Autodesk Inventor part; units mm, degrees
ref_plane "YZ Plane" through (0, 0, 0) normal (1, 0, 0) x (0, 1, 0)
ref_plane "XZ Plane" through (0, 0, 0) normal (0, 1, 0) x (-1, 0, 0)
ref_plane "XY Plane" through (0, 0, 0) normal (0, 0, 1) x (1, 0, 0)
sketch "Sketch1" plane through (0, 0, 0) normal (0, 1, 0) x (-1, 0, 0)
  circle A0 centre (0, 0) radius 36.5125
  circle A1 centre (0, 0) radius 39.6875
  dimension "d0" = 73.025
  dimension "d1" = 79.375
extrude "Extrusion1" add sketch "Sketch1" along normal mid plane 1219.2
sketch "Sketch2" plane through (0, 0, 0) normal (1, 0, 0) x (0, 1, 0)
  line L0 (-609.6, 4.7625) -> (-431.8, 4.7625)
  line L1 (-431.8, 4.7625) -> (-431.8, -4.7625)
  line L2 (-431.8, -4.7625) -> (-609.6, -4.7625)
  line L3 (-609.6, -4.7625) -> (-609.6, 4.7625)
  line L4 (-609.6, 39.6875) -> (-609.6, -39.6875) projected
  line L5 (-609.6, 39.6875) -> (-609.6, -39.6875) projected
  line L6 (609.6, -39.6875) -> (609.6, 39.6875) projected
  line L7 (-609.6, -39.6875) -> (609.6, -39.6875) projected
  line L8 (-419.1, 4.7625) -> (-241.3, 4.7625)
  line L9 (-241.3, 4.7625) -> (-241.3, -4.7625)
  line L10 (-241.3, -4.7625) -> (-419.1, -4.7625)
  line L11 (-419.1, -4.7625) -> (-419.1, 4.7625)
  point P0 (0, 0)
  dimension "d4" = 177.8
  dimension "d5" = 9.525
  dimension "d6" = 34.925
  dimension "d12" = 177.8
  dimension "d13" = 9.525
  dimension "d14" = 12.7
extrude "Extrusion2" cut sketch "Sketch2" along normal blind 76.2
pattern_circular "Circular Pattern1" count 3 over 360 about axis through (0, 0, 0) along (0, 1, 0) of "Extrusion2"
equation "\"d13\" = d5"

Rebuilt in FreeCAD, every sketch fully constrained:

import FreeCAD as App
import Part
import Sketcher
from FreeCAD import Vector
Q = App.Units.Quantity

doc = App.newDocument("Part")
params = doc.addObject("Spreadsheet::Sheet", "Params")
for row, (alias, value) in enumerate([
    ("sketch1_diameter", "3.125 in"),
    ("sketch1_diameter2", "2.875 in"),
    ("pad1_length", "48 in"),
    ("sketch2_width", "7 in"),
    ("sketch2_height", "0.375 in"),
    ("pocket1_length", "3 in"),
], start=1):
    params.set(f"A{row}", alias)
    params.set(f"B{row}", "=" + value)
    params.setAlias(f"B{row}", alias)

body = doc.addObject("PartDesign::Body", "Body")

sketch1 = body.newObject("Sketcher::SketchObject", "Sketch")
sketch1.AttachmentSupport = (doc.getObject("XZ_Plane"), [""])
sketch1.MapMode = "FlatFace"
sketch1.addGeometry([
    Part.Circle(Vector(0, 0, 0), Vector(0, 0, 1), 40),
    Part.Circle(Vector(0, 0, 0), Vector(0, 0, 1), 37),
], False)
sketch1.addConstraint([
    Sketcher.Constraint("Coincident", 0, 3, -1, 1),
    Sketcher.Constraint("Coincident", 1, 3, -1, 1),
    Sketcher.Constraint("Diameter", 0, Q("3.125 in")),
    Sketcher.Constraint("Diameter", 1, Q("2.875 in")),
])
sketch1.setExpression("Constraints[2]", "Params.sketch1_diameter")
sketch1.setExpression("Constraints[3]", "Params.sketch1_diameter2")
pad1 = body.newObject("PartDesign::Pad", "Pad")
pad1.Profile = sketch1
pad1.setExpression("Length", "Params.pad1_length")
pad1.Midplane = True

sketch2 = body.newObject("Sketcher::SketchObject", "Sketch001")
sketch2.AttachmentSupport = (doc.getObject("YZ_Plane"), [""])
sketch2.MapMode = "FlatFace"
sketch2.addGeometry([
    Part.LineSegment(Vector(-432, 5, 0), Vector(-610, 5, 0)),
    Part.LineSegment(Vector(-610, 5, 0), Vector(-610, -5, 0)),
    Part.LineSegment(Vector(-610, -5, 0), Vector(-432, -5, 0)),
    Part.LineSegment(Vector(-432, -5, 0), Vector(-432, 5, 0)),
    Part.LineSegment(Vector(-241, 5, 0), Vector(-419, 5, 0)),
    Part.LineSegment(Vector(-419, 5, 0), Vector(-419, -5, 0)),
    Part.LineSegment(Vector(-419, -5, 0), Vector(-241, -5, 0)),
    Part.LineSegment(Vector(-241, -5, 0), Vector(-241, 5, 0)),
], False)
sketch2.addConstraint([
    Sketcher.Constraint("Coincident", 0, 2, 1, 1),
    Sketcher.Constraint("Coincident", 1, 2, 2, 1),
    Sketcher.Constraint("Coincident", 2, 2, 3, 1),
    Sketcher.Constraint("Coincident", 3, 2, 0, 1),
    Sketcher.Constraint("Coincident", 4, 2, 5, 1),
    Sketcher.Constraint("Coincident", 5, 2, 6, 1),
    Sketcher.Constraint("Coincident", 6, 2, 7, 1),
    Sketcher.Constraint("Coincident", 7, 2, 4, 1),
    Sketcher.Constraint("Horizontal", 0),
    Sketcher.Constraint("Vertical", 1),
    Sketcher.Constraint("Horizontal", 2),
    Sketcher.Constraint("Vertical", 3),
    Sketcher.Constraint("Horizontal", 4),
    Sketcher.Constraint("Vertical", 5),
    Sketcher.Constraint("Horizontal", 6),
    Sketcher.Constraint("Vertical", 7),
    Sketcher.Constraint("Horizontal", 3, 2, 4, 2),
    Sketcher.Constraint("Horizontal", 2, 2, 5, 2),
    Sketcher.Constraint("Equal", 2, 4),
    Sketcher.Constraint("DistanceX", 0, 2, 0, 1, Q("7 in")),
    Sketcher.Constraint("DistanceX", 3, 2, 4, 2, Q("0.5 in")),
    Sketcher.Constraint("DistanceY", 1, 2, 1, 1, Q("0.375 in")),
    Sketcher.Constraint("DistanceX", 0, 2, -1, 1, Q("24 in")),
    Sketcher.Constraint("DistanceY", -1, 1, 0, 2, Q("0.1875 in")),
])
sketch2.setExpression("Constraints[19]", "Params.sketch2_width")
sketch2.setExpression("Constraints[21]", "Params.sketch2_height")
pocket1 = body.newObject("PartDesign::Pocket", "Pocket")
pocket1.Profile = sketch2
pocket1.setExpression("Length", "Params.pocket1_length")
pocket1.Reversed = True
doc.recompute()

polarpattern = body.newObject("PartDesign::PolarPattern", "PolarPattern")
polarpattern.Originals = [pocket1]
polarpattern.Axis = (doc.getObject("Y_Axis"), [""])
polarpattern.Angle = 360
polarpattern.Occurrences = 3
body.Tip = polarpattern

doc.recompute()
